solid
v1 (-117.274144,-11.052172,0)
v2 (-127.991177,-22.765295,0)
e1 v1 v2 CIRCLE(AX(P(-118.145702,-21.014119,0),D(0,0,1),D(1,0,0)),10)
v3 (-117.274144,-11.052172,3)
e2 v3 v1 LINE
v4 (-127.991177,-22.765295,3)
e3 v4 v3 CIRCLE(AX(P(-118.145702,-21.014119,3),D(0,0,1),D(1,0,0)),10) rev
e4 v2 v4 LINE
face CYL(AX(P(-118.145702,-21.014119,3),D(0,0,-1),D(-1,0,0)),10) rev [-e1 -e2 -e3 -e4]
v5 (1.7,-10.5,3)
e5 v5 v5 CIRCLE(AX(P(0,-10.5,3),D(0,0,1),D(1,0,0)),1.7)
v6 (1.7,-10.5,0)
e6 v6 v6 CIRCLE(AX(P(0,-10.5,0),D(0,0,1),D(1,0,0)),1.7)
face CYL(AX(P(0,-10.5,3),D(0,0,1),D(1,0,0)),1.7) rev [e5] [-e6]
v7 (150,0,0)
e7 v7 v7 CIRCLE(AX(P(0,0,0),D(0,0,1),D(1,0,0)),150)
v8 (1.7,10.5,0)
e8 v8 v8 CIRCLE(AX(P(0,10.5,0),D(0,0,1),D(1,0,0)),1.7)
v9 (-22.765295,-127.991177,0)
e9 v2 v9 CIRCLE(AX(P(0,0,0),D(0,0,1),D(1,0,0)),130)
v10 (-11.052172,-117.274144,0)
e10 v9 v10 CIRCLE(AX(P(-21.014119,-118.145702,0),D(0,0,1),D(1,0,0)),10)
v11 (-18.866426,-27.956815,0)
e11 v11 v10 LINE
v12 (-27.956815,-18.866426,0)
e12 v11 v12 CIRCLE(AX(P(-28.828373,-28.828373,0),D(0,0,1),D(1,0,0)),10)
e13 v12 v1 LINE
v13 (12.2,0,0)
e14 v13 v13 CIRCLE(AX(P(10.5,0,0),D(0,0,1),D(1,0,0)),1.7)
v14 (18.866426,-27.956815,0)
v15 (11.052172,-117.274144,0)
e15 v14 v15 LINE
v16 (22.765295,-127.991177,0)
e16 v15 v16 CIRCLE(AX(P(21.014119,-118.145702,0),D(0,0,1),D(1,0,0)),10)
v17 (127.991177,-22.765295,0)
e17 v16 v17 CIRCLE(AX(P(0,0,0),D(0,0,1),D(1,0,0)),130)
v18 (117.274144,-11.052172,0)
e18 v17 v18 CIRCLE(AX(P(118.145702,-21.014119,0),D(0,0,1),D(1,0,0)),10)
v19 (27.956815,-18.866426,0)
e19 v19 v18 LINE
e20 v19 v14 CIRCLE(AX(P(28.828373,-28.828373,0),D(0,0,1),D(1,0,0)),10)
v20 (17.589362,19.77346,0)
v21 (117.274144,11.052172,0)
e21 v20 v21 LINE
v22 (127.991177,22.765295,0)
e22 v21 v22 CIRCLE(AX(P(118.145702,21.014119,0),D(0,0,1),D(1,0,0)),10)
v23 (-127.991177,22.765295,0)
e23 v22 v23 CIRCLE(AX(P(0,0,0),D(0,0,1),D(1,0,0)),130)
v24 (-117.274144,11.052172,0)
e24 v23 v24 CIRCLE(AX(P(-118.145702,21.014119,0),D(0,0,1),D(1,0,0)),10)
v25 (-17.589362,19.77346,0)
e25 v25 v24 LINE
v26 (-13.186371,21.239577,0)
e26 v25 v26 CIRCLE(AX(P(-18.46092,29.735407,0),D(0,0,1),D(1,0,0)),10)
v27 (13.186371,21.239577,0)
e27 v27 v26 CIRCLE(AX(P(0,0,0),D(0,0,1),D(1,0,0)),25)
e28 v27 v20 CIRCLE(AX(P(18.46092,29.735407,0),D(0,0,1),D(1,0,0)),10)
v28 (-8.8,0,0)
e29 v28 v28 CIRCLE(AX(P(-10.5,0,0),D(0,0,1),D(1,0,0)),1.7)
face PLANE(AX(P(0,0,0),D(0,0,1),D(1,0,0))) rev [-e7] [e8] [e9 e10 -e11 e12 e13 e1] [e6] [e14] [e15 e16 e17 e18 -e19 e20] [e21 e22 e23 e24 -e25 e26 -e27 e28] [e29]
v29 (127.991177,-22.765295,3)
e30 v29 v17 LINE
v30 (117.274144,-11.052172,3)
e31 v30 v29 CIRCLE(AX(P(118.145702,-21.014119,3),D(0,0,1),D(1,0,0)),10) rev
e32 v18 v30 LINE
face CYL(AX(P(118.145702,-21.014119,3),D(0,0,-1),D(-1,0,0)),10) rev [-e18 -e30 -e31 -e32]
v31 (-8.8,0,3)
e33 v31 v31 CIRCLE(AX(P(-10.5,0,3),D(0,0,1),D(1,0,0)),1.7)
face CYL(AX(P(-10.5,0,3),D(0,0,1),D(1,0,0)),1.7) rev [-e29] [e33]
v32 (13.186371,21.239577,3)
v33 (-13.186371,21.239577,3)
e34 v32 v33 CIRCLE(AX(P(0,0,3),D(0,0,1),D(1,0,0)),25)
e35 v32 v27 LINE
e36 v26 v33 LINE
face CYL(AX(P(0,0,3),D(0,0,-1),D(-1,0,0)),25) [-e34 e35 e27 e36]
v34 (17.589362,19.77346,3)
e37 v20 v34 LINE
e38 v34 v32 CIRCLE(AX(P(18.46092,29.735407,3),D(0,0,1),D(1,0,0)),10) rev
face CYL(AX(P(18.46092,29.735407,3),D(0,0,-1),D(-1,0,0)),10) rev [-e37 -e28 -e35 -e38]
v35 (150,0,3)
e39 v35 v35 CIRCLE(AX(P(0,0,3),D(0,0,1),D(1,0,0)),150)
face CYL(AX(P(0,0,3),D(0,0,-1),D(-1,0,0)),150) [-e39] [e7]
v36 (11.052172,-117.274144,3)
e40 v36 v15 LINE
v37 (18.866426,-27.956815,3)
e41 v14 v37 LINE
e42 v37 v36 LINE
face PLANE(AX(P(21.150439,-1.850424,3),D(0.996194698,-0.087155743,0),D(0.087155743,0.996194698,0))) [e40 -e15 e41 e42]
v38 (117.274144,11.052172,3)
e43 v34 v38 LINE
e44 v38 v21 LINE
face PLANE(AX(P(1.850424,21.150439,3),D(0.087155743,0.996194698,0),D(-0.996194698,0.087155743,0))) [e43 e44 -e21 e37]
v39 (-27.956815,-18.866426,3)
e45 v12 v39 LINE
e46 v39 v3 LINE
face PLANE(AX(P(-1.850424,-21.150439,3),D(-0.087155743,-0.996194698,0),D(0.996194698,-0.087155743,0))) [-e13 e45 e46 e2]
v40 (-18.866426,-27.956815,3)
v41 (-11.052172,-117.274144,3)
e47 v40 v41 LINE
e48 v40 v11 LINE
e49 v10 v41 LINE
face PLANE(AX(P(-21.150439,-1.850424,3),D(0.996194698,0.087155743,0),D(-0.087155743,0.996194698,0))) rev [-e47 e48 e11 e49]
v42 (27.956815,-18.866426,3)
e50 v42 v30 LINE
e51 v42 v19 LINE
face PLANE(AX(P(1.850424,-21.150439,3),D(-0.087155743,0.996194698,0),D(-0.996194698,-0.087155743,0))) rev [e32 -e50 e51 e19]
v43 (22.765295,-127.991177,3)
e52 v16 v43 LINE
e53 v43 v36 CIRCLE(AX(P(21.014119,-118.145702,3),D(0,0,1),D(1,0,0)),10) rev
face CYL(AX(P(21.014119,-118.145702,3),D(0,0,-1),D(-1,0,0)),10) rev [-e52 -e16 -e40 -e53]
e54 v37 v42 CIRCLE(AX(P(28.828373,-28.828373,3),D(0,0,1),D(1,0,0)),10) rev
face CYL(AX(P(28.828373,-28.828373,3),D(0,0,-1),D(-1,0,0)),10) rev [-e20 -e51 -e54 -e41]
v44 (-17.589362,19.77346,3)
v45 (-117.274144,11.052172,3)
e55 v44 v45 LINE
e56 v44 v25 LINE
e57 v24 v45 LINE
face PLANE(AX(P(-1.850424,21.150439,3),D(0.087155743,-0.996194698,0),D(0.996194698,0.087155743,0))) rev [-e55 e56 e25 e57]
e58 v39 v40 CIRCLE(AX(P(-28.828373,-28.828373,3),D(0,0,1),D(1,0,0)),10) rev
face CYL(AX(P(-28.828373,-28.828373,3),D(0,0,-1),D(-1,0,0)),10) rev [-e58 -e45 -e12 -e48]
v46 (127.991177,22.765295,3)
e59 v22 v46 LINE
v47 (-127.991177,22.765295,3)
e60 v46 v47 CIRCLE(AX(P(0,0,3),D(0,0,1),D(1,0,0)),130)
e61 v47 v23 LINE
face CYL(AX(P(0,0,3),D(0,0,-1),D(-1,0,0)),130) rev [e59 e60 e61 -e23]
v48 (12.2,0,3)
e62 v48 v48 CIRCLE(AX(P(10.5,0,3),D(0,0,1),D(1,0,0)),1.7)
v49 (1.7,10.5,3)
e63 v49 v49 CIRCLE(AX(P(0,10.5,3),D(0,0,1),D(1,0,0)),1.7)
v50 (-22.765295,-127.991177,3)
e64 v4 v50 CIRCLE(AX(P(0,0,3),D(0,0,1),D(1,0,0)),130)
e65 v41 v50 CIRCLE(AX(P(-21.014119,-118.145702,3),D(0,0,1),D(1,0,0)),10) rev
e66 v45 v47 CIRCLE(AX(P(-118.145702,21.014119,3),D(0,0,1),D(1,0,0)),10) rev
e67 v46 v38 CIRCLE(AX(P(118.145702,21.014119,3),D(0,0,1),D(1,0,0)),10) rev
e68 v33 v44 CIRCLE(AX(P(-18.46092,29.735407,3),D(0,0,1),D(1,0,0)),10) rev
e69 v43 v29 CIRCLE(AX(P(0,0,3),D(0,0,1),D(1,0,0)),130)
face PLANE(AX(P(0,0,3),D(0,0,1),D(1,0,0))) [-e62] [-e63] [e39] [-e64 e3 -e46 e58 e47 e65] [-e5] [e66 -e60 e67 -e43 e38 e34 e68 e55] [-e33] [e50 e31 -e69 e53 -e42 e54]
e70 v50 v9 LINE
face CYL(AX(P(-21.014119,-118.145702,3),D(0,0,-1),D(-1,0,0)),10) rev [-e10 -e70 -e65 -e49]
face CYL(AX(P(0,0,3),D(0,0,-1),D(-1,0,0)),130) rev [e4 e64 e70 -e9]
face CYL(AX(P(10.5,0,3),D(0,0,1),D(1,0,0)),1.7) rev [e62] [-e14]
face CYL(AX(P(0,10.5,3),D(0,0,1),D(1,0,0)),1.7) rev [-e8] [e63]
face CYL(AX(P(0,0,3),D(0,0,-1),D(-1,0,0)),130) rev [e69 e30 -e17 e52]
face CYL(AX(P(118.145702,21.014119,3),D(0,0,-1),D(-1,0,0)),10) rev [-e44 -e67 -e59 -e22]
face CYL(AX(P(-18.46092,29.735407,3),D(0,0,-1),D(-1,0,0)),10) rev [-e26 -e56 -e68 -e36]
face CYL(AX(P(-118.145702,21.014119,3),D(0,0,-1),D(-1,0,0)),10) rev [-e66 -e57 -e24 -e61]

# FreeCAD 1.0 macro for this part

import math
import FreeCAD as App
import Part
import Sketcher

V = App.Vector
Q = App.Units.Quantity


def edges_at(feature, points):
    """Names of the edges that pass closest to the given points."""
    edges = feature.Shape.Edges
    near = lambda p: min(range(len(edges)), key=lambda i: edges[i].distToShape(Part.Vertex(*p))[0])
    return sorted({f"Edge{near(p) + 1}" for p in points})

doc = App.newDocument("Part")
body = doc.addObject("PartDesign::Body", "Body")

# Sketch on XY plane
sketch1 = body.newObject("Sketcher::SketchObject", "Sketch")
sketch1.AttachmentSupport = (doc.getObject("XY_Plane"), [""])
sketch1.MapMode = "FlatFace"
sketch1.addGeometry([
    Part.Circle(V(0, 0, 0), V(0, 0, 1), 150),  # 0
    Part.ArcOfCircle(Part.Circle(V(0, 0, 0), V(0, 0, 1), 130), math.radians(-176), math.radians(-94)),  # 1
    Part.LineSegment(V(-130, -10, 0), V(-20, -20, 0)),  # 2
    Part.LineSegment(V(-20, -20, 0), V(-10, -130, 0)),  # 3
    Part.ArcOfCircle(Part.Circle(V(0, 0, 0), V(0, 0, 1), 130), math.radians(-86), math.radians(-4)),  # 4
    Part.LineSegment(V(10, -130, 0), V(20, -20, 0)),  # 5
    Part.LineSegment(V(20, -20, 0), V(130, -10, 0)),  # 6
    Part.ArcOfCircle(Part.Circle(V(0, 0, 0), V(0, 0, 1), 130), math.radians(4), math.radians(176)),  # 7
    Part.LineSegment(V(130, 10, 0), V(15, 20, 0)),  # 8
    Part.ArcOfCircle(Part.Circle(V(0, 0, 0), V(0, 0, 1), 25), math.radians(53), math.radians(127)),  # 9
    Part.LineSegment(V(-15, 20, 0), V(-130, 10, 0)),  # 10
], False)
sketch1.addConstraint([
    Sketcher.Constraint("Coincident", 1, 1, 2, 1),
    Sketcher.Constraint("Coincident", 2, 2, 3, 1),
    Sketcher.Constraint("Coincident", 3, 2, 1, 2),
    Sketcher.Constraint("Coincident", 4, 1, 5, 1),
    Sketcher.Constraint("Coincident", 5, 2, 6, 1),
    Sketcher.Constraint("Coincident", 6, 2, 4, 2),
    Sketcher.Constraint("Coincident", 7, 1, 8, 1),
    Sketcher.Constraint("Coincident", 8, 2, 9, 1),
    Sketcher.Constraint("Coincident", 9, 2, 10, 1),
    Sketcher.Constraint("Coincident", 10, 2, 7, 2),
    Sketcher.Constraint("Coincident", 0, 3, -1, 1),
    Sketcher.Constraint("Coincident", 1, 3, -1, 1),
    Sketcher.Constraint("Coincident", 4, 3, -1, 1),
    Sketcher.Constraint("Coincident", 7, 3, -1, 1),
    Sketcher.Constraint("Coincident", 9, 3, -1, 1),
    Sketcher.Constraint("Equal", 1, 4),
    Sketcher.Constraint("Equal", 4, 7),
    Sketcher.Constraint("Symmetric", 2, 2, 5, 2, -2),
    Sketcher.Constraint("Perpendicular", 2, 5),
    Sketcher.Constraint("Perpendicular", 3, 6),
    Sketcher.Constraint("Perpendicular", 5, 8),
    Sketcher.Constraint("Parallel", 6, 10),
    Sketcher.Constraint("Horizontal", 3, 2, 4, 1),
    Sketcher.Constraint("Horizontal", 8, 2, 9, 2),
    Sketcher.Constraint("Vertical", 6, 2, 7, 1),
    Sketcher.Constraint("Equal", 2, 3),
    Sketcher.Constraint("Diameter", 0, 300.0),
    Sketcher.Constraint("Radius", 1, 130.0),
    Sketcher.Constraint("Radius", 9, 25.0),
    Sketcher.Constraint("Angle", 2, Q("-5 deg")),
    Sketcher.Constraint("DistanceX", -1, 1, 8, 2, 15.0),
])
pad1 = body.newObject("PartDesign::Pad", "Pad")
pad1.Profile = sketch1
pad1.Length = 3
doc.recompute()

fillet = body.newObject("PartDesign::Fillet", "Fillet")
fillet.Base = (pad1, edges_at(pad1, [
    (-129.617, 9.972, 1.5),
    (-15, 20, 1.5),
    (15, 20, 1.5),
    (129.617, 9.972, 1.5),
    (9.972, -129.617, 1.5),
    (129.617, -9.972, 1.5),
    (19.598, -19.598, 1.5),
    (-129.617, -9.972, 1.5),
    (-9.972, -129.617, 1.5),
    (-19.598, -19.598, 1.5),
]))
fillet.Radius = 10

# Sketch on XY plane
sketch2 = body.newObject("Sketcher::SketchObject", "Sketch001")
sketch2.AttachmentSupport = (doc.getObject("XY_Plane"), [""])
sketch2.MapMode = "FlatFace"
sketch2.AttachmentOffset = App.Placement(V(0, 0, 3), App.Rotation())
sketch2.addGeometry([
    Part.Circle(V(0, 10.5, 0), V(0, 0, 1), 1.7),
    Part.Circle(V(10.5, 0, 0), V(0, 0, 1), 1.7),
    Part.Circle(V(0, -10.5, 0), V(0, 0, 1), 1.7),
    Part.Circle(V(-10.5, 0, 0), V(0, 0, 1), 1.7),
], False)
sketch2.addConstraint([
    Sketcher.Constraint("Equal", 0, 1),
    Sketcher.Constraint("Equal", 1, 2),
    Sketcher.Constraint("Equal", 2, 3),
    Sketcher.Constraint("Symmetric", 0, 3, 2, 3, -1, 1),
    Sketcher.Constraint("Symmetric", 1, 3, 3, 3, -1, 1),
    Sketcher.Constraint("PointOnObject", 0, 3, -2),
    Sketcher.Constraint("PointOnObject", 1, 3, -1),
    Sketcher.Constraint("Diameter", 0, 3.4),
    Sketcher.Constraint("DistanceY", 2, 3, 0, 3, 21.0),
    Sketcher.Constraint("DistanceX", 3, 3, 1, 3, 21.0),
])
doc.recompute()
hole = body.newObject("PartDesign::Hole", "Hole")
hole.Profile = sketch2
hole.ThreadType = "None"
hole.Diameter = 3.4
hole.DepthType = "ThroughAll"

doc.recompute()
